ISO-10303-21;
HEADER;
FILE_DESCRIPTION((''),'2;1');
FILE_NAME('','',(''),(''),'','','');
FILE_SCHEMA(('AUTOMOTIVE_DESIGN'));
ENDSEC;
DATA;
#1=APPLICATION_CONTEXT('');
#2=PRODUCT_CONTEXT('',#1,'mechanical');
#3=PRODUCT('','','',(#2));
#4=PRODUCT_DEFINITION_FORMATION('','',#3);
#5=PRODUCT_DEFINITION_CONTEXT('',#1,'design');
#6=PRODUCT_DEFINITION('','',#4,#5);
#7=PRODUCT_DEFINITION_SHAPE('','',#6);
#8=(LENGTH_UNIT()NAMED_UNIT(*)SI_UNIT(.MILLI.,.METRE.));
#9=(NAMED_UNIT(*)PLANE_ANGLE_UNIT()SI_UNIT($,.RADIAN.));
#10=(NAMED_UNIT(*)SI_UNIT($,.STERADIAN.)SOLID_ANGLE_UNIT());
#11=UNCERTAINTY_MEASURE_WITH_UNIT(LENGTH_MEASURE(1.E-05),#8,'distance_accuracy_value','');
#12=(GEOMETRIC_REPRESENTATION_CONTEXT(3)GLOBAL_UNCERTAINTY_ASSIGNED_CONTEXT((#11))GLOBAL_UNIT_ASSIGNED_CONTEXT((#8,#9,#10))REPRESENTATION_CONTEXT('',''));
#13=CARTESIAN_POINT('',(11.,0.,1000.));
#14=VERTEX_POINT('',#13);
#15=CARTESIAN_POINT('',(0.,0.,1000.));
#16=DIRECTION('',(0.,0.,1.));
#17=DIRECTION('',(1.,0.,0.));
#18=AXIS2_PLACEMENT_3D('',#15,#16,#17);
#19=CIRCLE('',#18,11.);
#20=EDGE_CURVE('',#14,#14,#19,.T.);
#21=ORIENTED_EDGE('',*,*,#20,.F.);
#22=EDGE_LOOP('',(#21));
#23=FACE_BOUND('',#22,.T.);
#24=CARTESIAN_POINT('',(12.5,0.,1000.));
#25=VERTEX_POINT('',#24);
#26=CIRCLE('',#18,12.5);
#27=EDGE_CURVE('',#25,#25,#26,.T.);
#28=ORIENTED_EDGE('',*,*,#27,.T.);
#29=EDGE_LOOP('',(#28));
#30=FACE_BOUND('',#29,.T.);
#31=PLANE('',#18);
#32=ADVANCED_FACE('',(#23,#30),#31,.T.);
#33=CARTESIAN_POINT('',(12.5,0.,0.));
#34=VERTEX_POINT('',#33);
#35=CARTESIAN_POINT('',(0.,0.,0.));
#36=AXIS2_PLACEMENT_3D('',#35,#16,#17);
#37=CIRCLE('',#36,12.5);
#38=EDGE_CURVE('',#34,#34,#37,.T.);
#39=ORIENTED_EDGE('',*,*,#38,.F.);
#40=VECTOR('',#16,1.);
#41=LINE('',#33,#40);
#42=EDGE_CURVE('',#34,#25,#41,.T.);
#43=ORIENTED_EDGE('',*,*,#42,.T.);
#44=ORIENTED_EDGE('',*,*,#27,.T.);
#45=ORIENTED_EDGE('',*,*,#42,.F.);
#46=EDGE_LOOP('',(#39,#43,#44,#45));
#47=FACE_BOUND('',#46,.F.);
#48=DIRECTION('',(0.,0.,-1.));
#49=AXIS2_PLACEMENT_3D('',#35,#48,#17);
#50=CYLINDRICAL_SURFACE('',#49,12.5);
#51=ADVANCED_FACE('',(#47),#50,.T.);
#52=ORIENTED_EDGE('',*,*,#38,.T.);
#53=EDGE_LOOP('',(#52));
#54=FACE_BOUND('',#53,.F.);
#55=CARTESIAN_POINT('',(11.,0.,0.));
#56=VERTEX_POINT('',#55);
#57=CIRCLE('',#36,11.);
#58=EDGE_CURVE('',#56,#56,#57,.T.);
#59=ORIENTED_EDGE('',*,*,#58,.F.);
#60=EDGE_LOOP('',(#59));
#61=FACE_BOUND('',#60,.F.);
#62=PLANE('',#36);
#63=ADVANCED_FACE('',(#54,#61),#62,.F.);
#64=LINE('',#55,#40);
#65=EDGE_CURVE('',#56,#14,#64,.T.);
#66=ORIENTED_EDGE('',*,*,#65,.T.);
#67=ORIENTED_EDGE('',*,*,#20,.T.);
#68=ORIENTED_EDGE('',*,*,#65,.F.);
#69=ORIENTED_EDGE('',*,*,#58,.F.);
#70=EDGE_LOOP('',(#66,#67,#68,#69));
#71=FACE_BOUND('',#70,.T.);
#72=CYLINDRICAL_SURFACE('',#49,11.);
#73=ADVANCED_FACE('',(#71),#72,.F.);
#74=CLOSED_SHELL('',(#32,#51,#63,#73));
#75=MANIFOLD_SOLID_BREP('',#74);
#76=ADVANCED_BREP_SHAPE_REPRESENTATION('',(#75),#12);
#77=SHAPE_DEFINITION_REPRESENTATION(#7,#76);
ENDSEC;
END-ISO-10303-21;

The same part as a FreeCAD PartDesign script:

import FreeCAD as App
import Part
import Sketcher
from FreeCAD import Vector
Q = App.Units.Quantity

doc = App.newDocument("Part")
body = doc.addObject("PartDesign::Body", "Body")

# Sketch on XY plane
sketch1 = body.newObject("Sketcher::SketchObject", "Sketch")
sketch1.AttachmentSupport = (doc.getObject("XY_Plane"), [""])
sketch1.MapMode = "FlatFace"
sketch1.addGeometry(Part.Circle(Vector(0, 0, 0), Vector(0, 0, 1), 12), False)
sketch1.addGeometry(Part.Circle(Vector(0, 0, 0), Vector(0, 0, 1), 11), False)
sketch1.addConstraint(Sketcher.Constraint("Coincident", 0, 3, -1, 1))
sketch1.addConstraint(Sketcher.Constraint("Coincident", 1, 3, -1, 1))
sketch1.addConstraint(Sketcher.Constraint("Diameter", 0, Q("25 mm")))
sketch1.addConstraint(Sketcher.Constraint("Diameter", 1, Q("22 mm")))
pad1 = body.newObject("PartDesign::Pad", "Pad")
pad1.Profile = sketch1
pad1.Length = 1000

doc.recompute()
